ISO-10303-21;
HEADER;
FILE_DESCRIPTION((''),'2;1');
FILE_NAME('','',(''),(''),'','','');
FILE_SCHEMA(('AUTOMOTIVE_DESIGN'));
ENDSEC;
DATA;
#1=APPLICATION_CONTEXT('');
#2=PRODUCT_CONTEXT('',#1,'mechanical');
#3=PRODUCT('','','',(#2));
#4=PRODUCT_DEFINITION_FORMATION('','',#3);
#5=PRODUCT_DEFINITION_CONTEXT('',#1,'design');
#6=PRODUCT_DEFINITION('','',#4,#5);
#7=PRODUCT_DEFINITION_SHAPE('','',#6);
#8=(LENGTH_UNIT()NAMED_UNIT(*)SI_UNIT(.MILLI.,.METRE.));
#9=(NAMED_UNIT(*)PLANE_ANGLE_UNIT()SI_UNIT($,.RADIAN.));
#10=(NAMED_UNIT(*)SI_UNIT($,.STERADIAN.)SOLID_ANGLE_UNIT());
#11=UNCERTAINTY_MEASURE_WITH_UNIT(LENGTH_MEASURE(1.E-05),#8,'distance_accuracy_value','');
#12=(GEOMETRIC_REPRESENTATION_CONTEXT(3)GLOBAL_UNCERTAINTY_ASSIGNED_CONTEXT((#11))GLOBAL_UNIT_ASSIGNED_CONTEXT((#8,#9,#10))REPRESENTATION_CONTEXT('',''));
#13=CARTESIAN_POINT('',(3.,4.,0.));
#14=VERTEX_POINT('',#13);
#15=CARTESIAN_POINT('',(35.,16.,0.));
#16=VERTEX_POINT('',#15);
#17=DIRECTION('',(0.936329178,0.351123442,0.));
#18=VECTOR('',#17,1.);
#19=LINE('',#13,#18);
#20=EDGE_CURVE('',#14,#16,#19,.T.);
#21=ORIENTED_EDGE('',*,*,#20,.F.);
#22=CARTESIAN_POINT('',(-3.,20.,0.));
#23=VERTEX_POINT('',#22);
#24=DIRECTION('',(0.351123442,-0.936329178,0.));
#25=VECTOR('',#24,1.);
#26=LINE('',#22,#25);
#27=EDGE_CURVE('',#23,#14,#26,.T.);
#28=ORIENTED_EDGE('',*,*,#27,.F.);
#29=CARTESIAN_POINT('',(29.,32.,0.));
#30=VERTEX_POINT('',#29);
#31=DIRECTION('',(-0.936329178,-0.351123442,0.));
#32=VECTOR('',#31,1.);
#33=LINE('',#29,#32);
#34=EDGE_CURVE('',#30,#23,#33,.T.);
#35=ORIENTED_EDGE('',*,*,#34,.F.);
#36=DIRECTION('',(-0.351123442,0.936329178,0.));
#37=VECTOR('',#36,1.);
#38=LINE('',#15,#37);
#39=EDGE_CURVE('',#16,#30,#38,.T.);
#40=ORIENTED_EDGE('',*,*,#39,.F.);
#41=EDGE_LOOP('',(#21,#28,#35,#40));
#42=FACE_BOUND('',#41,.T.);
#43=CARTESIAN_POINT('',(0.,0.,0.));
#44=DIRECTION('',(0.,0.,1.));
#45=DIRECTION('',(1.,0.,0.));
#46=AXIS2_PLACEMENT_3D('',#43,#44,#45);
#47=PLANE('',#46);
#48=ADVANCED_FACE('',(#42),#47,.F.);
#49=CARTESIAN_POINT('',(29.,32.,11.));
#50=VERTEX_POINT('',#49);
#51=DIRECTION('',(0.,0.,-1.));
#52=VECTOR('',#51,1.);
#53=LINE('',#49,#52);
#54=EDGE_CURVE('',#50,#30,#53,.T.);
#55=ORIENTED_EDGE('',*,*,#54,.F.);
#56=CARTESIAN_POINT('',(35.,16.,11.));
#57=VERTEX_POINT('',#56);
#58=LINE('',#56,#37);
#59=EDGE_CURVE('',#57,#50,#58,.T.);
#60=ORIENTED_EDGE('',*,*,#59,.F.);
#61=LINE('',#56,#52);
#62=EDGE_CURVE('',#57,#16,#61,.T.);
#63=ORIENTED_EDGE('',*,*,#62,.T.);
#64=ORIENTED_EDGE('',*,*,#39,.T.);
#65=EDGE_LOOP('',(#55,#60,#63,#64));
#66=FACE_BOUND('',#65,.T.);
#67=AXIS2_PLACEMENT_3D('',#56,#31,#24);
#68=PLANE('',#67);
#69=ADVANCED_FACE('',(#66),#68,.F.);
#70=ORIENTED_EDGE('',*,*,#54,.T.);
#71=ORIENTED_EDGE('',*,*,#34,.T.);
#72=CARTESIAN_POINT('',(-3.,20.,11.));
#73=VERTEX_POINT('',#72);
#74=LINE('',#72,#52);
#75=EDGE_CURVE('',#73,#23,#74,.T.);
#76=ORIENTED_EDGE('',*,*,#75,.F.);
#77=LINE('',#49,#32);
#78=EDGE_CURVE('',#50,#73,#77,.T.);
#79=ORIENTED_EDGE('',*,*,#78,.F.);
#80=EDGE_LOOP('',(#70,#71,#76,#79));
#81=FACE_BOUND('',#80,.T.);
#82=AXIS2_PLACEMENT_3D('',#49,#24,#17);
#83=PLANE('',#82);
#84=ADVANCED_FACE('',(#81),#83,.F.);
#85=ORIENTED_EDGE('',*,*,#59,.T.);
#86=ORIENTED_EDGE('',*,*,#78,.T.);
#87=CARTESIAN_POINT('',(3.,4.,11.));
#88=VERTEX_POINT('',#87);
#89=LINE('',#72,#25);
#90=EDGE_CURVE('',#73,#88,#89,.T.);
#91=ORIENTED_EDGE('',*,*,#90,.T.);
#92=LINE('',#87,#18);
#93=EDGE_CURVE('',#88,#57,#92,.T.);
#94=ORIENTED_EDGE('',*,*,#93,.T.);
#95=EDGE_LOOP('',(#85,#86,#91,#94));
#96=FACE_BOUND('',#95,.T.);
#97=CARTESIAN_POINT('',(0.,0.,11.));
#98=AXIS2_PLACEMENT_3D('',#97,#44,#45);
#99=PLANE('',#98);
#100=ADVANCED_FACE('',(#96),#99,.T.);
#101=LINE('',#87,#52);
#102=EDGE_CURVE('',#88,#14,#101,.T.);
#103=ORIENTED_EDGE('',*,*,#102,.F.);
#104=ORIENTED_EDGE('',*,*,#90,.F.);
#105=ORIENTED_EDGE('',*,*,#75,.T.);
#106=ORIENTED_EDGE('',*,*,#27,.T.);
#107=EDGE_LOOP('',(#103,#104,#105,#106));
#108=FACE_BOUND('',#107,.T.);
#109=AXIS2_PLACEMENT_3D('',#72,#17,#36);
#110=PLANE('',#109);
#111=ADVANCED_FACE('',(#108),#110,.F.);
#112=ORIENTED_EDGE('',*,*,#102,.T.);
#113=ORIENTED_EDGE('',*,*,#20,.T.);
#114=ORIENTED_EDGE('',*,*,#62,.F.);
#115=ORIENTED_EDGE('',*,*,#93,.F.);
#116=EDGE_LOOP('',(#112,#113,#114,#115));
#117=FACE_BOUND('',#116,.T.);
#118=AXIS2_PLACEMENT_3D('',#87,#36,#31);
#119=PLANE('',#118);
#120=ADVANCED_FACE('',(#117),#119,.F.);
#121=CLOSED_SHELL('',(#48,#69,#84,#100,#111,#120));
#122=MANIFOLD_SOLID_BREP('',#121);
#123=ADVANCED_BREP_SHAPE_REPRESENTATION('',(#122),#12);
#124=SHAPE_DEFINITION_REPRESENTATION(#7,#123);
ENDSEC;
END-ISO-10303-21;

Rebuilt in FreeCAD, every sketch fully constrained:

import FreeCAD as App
import Part
import Sketcher

V = App.Vector
Q = App.Units.Quantity


def add_polygon(sketch, points):
    """Adds a closed chain of lines whose ends are joined by coincident constraints."""
    first, n = sketch.GeometryCount, len(points)
    for a, b in zip(points, points[1:] + points[:1]):
        sketch.addGeometry(Part.LineSegment(App.Vector(*a, 0), App.Vector(*b, 0)), False)
    for i in range(n):
        sketch.addConstraint(Sketcher.Constraint("Coincident", first + i, 2, first + (i + 1) % n, 1))

doc = App.newDocument("Part")
body = doc.addObject("PartDesign::Body", "Body")

sketch1 = body.newObject("Sketcher::SketchObject", "Sketch")
sketch1.AttachmentSupport = (doc.getObject("XY_Plane"), [""])
sketch1.MapMode = "FlatFace"
add_polygon(sketch1, [(3, 4), (35, 16), (29, 32), (-3, 20)])
sketch1.addConstraint(Sketcher.Constraint("Perpendicular", 0, 1))
sketch1.addConstraint(Sketcher.Constraint("Perpendicular", 1, 2))
sketch1.addConstraint(Sketcher.Constraint("Perpendicular", 2, 3))
sketch1.addConstraint(Sketcher.Constraint("DistanceX", -1, 1, 0, 2, Q("35 mm")))
sketch1.addConstraint(Sketcher.Constraint("DistanceY", -1, 1, 0, 2, Q("16 mm")))
sketch1.addConstraint(Sketcher.Constraint("DistanceX", -1, 1, 1, 2, Q("29 mm")))
sketch1.addConstraint(Sketcher.Constraint("DistanceY", -1, 1, 1, 2, Q("32 mm")))
sketch1.addConstraint(Sketcher.Constraint("DistanceX", 2, 2, -1, 1, Q("3 mm")))
pad1 = body.newObject("PartDesign::Pad", "Pad")
pad1.Profile = sketch1
pad1.Length = 11

doc.recompute()
